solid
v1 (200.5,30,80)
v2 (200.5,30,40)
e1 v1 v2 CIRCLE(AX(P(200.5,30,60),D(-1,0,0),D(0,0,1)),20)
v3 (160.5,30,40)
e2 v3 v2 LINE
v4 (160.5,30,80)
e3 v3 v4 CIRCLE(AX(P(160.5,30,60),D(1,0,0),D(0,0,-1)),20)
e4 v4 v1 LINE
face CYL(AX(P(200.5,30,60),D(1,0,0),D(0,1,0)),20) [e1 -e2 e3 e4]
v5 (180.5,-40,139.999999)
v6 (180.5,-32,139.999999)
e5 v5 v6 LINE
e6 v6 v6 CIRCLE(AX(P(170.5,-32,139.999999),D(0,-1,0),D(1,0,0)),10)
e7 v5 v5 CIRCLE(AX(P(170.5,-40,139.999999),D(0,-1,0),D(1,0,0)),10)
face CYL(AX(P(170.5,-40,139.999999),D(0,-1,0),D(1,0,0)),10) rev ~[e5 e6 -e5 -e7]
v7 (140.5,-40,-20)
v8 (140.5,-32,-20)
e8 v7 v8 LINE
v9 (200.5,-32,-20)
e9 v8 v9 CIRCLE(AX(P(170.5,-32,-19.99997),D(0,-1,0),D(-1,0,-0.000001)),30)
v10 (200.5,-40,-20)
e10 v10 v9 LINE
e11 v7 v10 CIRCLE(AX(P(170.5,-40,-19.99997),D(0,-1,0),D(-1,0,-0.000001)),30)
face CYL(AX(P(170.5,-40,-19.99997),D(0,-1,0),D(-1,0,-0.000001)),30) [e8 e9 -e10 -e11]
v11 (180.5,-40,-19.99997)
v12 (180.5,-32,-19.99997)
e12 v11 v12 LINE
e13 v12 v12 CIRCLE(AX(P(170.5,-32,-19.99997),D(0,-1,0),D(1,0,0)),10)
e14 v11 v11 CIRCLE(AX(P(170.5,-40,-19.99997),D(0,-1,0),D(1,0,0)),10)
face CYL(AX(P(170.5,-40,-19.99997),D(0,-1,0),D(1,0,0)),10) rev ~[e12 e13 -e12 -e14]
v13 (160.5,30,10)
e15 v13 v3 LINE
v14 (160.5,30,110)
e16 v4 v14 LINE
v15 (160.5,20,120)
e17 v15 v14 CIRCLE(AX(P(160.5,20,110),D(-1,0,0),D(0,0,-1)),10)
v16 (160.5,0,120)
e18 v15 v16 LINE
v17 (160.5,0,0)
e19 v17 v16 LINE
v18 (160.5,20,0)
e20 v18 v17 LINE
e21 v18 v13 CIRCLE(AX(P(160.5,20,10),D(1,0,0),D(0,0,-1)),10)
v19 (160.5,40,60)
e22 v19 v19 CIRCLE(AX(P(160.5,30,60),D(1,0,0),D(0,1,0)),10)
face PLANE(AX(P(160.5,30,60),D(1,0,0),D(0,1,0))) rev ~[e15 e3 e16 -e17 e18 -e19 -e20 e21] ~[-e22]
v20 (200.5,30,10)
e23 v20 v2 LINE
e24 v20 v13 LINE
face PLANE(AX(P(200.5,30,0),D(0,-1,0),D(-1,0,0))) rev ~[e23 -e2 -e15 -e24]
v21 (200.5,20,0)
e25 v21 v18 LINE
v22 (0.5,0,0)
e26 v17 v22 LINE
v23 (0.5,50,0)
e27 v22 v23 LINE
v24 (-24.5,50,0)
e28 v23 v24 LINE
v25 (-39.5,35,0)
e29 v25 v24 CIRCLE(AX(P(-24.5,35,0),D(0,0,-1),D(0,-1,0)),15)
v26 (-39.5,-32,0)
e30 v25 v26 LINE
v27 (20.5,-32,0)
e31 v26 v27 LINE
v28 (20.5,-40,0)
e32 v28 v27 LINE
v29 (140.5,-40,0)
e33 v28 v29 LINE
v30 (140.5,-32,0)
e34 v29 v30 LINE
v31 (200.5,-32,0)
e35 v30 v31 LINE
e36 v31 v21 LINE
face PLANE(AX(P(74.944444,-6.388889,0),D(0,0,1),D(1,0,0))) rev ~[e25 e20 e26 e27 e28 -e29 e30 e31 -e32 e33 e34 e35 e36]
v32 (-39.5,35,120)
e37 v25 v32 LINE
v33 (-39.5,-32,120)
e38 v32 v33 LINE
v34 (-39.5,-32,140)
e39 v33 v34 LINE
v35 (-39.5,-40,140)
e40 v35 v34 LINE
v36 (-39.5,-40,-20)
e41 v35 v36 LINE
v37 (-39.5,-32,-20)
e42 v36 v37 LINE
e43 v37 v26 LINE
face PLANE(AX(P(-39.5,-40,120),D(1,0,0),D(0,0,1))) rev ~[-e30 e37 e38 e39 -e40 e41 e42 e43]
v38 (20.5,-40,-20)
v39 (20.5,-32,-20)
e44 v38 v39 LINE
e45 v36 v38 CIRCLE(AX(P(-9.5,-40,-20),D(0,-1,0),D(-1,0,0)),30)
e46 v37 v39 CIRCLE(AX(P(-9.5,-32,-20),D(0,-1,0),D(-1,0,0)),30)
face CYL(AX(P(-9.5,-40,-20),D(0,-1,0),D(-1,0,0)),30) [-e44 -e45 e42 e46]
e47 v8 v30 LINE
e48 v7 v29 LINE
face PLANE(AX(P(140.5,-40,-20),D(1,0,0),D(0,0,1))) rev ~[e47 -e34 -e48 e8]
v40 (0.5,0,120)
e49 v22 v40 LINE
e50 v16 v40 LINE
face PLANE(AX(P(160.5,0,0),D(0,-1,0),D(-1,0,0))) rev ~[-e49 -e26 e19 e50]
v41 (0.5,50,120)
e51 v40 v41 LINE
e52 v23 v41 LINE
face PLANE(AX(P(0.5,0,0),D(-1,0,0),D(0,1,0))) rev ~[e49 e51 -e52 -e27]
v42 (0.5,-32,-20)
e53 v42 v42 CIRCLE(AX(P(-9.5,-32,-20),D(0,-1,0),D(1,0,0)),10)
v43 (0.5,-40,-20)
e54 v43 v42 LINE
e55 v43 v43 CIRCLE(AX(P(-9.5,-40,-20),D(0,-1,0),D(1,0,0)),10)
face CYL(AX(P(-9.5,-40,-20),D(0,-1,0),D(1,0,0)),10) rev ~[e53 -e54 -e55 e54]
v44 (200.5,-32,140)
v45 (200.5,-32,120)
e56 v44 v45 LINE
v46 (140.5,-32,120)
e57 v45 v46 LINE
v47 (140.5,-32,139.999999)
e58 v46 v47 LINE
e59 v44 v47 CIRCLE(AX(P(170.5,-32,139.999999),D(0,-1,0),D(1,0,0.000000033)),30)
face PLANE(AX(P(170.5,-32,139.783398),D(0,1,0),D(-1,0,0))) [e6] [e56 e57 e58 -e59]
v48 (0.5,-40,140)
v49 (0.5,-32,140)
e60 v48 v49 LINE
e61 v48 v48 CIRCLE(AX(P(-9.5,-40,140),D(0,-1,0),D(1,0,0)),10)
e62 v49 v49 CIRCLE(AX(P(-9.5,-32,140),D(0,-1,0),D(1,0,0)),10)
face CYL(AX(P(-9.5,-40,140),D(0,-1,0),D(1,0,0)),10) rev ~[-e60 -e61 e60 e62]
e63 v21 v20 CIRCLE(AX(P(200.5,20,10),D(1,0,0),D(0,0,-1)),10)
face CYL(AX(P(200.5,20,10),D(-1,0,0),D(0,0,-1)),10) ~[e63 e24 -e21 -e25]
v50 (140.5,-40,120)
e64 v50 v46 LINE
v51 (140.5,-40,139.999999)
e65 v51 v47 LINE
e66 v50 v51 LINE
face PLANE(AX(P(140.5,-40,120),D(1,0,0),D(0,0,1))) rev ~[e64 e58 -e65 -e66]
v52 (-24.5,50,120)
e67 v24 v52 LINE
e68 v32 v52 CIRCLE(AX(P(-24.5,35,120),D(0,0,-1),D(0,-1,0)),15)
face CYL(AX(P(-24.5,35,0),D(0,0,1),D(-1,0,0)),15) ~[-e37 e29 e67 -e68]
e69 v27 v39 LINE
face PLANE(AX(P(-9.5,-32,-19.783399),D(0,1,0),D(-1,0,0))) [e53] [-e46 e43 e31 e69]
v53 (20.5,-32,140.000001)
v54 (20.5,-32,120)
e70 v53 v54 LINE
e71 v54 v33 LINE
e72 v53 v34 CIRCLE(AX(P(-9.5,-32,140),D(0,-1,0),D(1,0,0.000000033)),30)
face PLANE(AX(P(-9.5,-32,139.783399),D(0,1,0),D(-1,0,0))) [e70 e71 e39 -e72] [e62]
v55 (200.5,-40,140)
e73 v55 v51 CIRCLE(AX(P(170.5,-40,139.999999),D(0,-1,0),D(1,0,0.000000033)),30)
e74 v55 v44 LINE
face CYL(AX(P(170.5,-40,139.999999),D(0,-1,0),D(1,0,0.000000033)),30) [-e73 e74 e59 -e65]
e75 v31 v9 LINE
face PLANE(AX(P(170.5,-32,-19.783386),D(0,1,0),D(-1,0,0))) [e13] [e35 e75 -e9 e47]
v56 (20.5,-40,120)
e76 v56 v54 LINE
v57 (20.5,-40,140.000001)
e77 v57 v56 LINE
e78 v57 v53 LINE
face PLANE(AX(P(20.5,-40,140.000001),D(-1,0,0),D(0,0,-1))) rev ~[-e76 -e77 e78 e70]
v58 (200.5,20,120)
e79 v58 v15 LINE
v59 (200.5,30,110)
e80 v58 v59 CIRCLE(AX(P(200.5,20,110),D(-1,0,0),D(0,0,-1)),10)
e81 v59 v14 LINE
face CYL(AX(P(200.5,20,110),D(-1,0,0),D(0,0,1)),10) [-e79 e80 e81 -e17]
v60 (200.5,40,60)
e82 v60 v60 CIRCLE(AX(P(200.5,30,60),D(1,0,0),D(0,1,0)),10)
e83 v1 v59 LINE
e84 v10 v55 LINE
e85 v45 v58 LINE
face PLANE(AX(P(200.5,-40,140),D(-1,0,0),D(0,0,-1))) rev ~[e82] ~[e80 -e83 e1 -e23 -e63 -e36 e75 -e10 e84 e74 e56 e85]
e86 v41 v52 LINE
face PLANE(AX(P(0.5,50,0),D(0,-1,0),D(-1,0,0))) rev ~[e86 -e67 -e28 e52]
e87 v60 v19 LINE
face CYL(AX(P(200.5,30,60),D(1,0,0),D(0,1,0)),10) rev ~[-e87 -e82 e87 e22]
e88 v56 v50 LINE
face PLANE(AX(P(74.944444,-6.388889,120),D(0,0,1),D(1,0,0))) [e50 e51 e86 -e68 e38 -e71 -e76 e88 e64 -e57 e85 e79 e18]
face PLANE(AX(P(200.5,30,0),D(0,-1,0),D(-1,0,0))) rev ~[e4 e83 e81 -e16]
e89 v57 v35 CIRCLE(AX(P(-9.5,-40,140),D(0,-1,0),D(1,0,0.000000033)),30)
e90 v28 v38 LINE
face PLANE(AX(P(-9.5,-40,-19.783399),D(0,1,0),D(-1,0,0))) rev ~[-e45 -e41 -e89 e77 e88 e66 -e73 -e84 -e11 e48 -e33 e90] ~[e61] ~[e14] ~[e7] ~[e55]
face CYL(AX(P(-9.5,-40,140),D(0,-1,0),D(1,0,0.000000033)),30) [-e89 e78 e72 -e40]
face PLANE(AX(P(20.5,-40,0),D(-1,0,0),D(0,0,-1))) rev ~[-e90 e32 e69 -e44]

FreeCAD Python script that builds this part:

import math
import FreeCAD as App
import Part
import Sketcher
from FreeCAD import Vector
Q = App.Units.Quantity


def edges_at(feature, points):
    """Names of the edges that pass closest to the given points."""
    edges = feature.Shape.Edges
    near = lambda p: min(range(len(edges)), key=lambda i: edges[i].distToShape(Part.Vertex(*p))[0])
    return sorted({f"Edge{near(p) + 1}" for p in points})


def add_polygon(sketch, points):
    """Adds a closed chain of lines whose ends are joined by coincident constraints."""
    first, n = sketch.GeometryCount, len(points)
    for a, b in zip(points, points[1:] + points[:1]):
        sketch.addGeometry(Part.LineSegment(App.Vector(*a, 0), App.Vector(*b, 0)), False)
    for i in range(n):
        sketch.addConstraint(Sketcher.Constraint("Coincident", first + i, 2, first + (i + 1) % n, 1))

doc = App.newDocument("Part")
body = doc.addObject("PartDesign::Body", "Body")

sketch1 = doc.addObject("Sketcher::SketchObject", "Sketch")
body.addObject(sketch1)
sketch1.AttachmentSupport = (doc.XY_Plane, [""])
sketch1.MapMode = "FlatFace"
add_polygon(sketch1, [(-40, 50), (-40, -40), (200, -40), (200, 30), (160, 30), (160, 0), (0, 0), (0, 50)])
sketch1.addConstraint([
    Sketcher.Constraint("Vertical", 0),
    Sketcher.Constraint("Horizontal", 1),
    Sketcher.Constraint("Vertical", 2),
    Sketcher.Constraint("Horizontal", 3),
    Sketcher.Constraint("Vertical", 4),
    Sketcher.Constraint("Horizontal", 5),
    Sketcher.Constraint("Vertical", 6),
    Sketcher.Constraint("Horizontal", 7),
    Sketcher.Constraint("PointOnObject", 4, 2, -1),
    Sketcher.Constraint("Equal", 3, 7),
    Sketcher.Constraint("DistanceX", 1, 1, 1, 2, Q("240 mm")),
    Sketcher.Constraint("DistanceX", 3, 2, 3, 1, Q("40 mm")),
    Sketcher.Constraint("DistanceY", 0, 2, 0, 1, Q("90 mm")),
    Sketcher.Constraint("DistanceY", 2, 1, 2, 2, Q("70 mm")),
    Sketcher.Constraint("DistanceY", 4, 2, 4, 1, Q("30 mm")),
    Sketcher.Constraint("DistanceX", 0, 2, -1, 1, Q("39.5 mm")),
])
pad1 = doc.addObject("PartDesign::Pad", "Pad")
body.addObject(pad1)
pad1.Profile = sketch1
pad1.Length = 120
doc.recompute()

fillet = doc.addObject("PartDesign::Fillet", "Fillet")
body.addObject(fillet)
fillet.Base = (pad1, edges_at(pad1, [(-39.5, 50, 60)]))
fillet.Radius = 15
doc.recompute()

fillet2 = doc.addObject("PartDesign::Fillet", "Fillet001")
body.addObject(fillet2)
fillet2.Base = (fillet, edges_at(fillet, [(180.5, 30, 120), (180.5, 30, 0)]))
fillet2.Radius = 10

sketch2 = doc.addObject("Sketcher::SketchObject", "Sketch001")
body.addObject(sketch2)
sketch2.AttachmentSupport = (doc.YZ_Plane, [""])
sketch2.MapMode = "FlatFace"
sketch2.AttachmentOffset = App.Placement(Vector(0, 0, 200.5), App.Rotation())
sketch2.addGeometry(Part.Circle(Vector(30, 60, 0), Vector(0, 0, 1), 20), False)
sketch2.addConstraint([
    Sketcher.Constraint("Diameter", 0, Q("40 mm")),
    Sketcher.Constraint("DistanceX", -1, 1, 0, 3, Q("30 mm")),
    Sketcher.Constraint("DistanceY", -1, 1, 0, 3, Q("60 mm")),
])
pad2 = doc.addObject("PartDesign::Pad", "Pad001")
body.addObject(pad2)
pad2.Profile = sketch2
pad2.Length = 40
pad2.Reversed = True

sketch3 = doc.addObject("Sketcher::SketchObject", "Sketch002")
body.addObject(sketch3)
sketch3.AttachmentSupport = (doc.YZ_Plane, [""])
sketch3.MapMode = "FlatFace"
sketch3.AttachmentOffset = App.Placement(Vector(0, 0, 200.5), App.Rotation())
sketch3.addGeometry(Part.Circle(Vector(30, 60, 0), Vector(0, 0, 1), 10), False)
sketch3.addConstraint([
    Sketcher.Constraint("Diameter", 0, Q("20 mm")),
    Sketcher.Constraint("DistanceX", -1, 1, 0, 3, Q("30 mm")),
    Sketcher.Constraint("DistanceY", -1, 1, 0, 3, Q("60 mm")),
])
pocket1 = doc.addObject("PartDesign::Pocket", "Pocket")
body.addObject(pocket1)
pocket1.Profile = sketch3
pocket1.Length = 40

sketch4 = doc.addObject("Sketcher::SketchObject", "Sketch003")
body.addObject(sketch4)
sketch4.AttachmentSupport = (doc.XZ_Plane, [""])
sketch4.MapMode = "FlatFace"
sketch4.AttachmentOffset = App.Placement(Vector(0, 0, 40), App.Rotation())
sketch4.addGeometry([
    Part.LineSegment(Vector(20, 120, 0), Vector(20, 140, 0)),
    Part.ArcOfCircle(Part.Circle(Vector(-10, 140, 0), Vector(0, 0, 1), 30), math.radians(0), math.radians(180)),
    Part.LineSegment(Vector(-40, 140, 0), Vector(-40, 120, 0)),
    Part.LineSegment(Vector(-40, 120, 0), Vector(20, 120, 0)),
], False)
sketch4.addConstraint([
    Sketcher.Constraint("Tangent", 0, 2, 1, 1),
    Sketcher.Constraint("Tangent", 1, 2, 2, 1),
    Sketcher.Constraint("Coincident", 2, 2, 3, 1),
    Sketcher.Constraint("Coincident", 3, 2, 0, 1),
    Sketcher.Constraint("Vertical", 0),
    Sketcher.Constraint("Vertical", 2),
    Sketcher.Constraint("Horizontal", 3),
    Sketcher.Constraint("Radius", 1, Q("30 mm")),
    Sketcher.Constraint("DistanceY", 0, 1, 0, 2, Q("20.000001 mm")),
    Sketcher.Constraint("DistanceY", -1, 1, 1, 3, Q("140 mm")),
    Sketcher.Constraint("DistanceX", 1, 3, -1, 1, Q("9.5 mm")),
])
pad3 = doc.addObject("PartDesign::Pad", "Pad002")
body.addObject(pad3)
pad3.Profile = sketch4
pad3.Length = 8
pad3.Reversed = True

sketch5 = doc.addObject("Sketcher::SketchObject", "Sketch004")
body.addObject(sketch5)
sketch5.AttachmentSupport = (doc.XZ_Plane, [""])
sketch5.MapMode = "FlatFace"
sketch5.AttachmentOffset = App.Placement(Vector(0, 0, 40), App.Rotation())
sketch5.addGeometry(Part.Circle(Vector(-10, 140, 0), Vector(0, 0, 1), 10), False)
sketch5.addConstraint([
    Sketcher.Constraint("Diameter", 0, Q("20 mm")),
    Sketcher.Constraint("DistanceY", -1, 1, 0, 3, Q("140 mm")),
    Sketcher.Constraint("DistanceX", 0, 3, -1, 1, Q("9.5 mm")),
])
pocket2 = doc.addObject("PartDesign::Pocket", "Pocket001")
body.addObject(pocket2)
pocket2.Profile = sketch5
pocket2.Length = 8

sketch6 = doc.addObject("Sketcher::SketchObject", "Sketch005")
body.addObject(sketch6)
sketch6.AttachmentSupport = (doc.XZ_Plane, [""])
sketch6.MapMode = "FlatFace"
sketch6.AttachmentOffset = App.Placement(Vector(0, 0, 40), App.Rotation())
sketch6.addGeometry([
    Part.LineSegment(Vector(200, 120, 0), Vector(200, 140, 0)),
    Part.ArcOfCircle(Part.Circle(Vector(170, 140, 0), Vector(0, 0, 1), 30), math.radians(0), math.radians(180)),
    Part.LineSegment(Vector(140, 140, 0), Vector(140, 120, 0)),
    Part.LineSegment(Vector(140, 120, 0), Vector(200, 120, 0)),
], False)
sketch6.addConstraint([
    Sketcher.Constraint("Tangent", 0, 2, 1, 1),
    Sketcher.Constraint("Tangent", 1, 2, 2, 1),
    Sketcher.Constraint("Coincident", 2, 2, 3, 1),
    Sketcher.Constraint("Coincident", 3, 2, 0, 1),
    Sketcher.Constraint("Vertical", 0),
    Sketcher.Constraint("Vertical", 2),
    Sketcher.Constraint("Horizontal", 3),
    Sketcher.Constraint("Radius", 1, Q("30 mm")),
    Sketcher.Constraint("DistanceY", 0, 1, 0, 2, Q("20 mm")),
    Sketcher.Constraint("DistanceY", -1, 1, 1, 3, Q("139.999999 mm")),
    Sketcher.Constraint("DistanceX", -1, 1, 1, 3, Q("170.5 mm")),
])
pad4 = doc.addObject("PartDesign::Pad", "Pad003")
body.addObject(pad4)
pad4.Profile = sketch6
pad4.Length = 8
pad4.Reversed = True

sketch7 = doc.addObject("Sketcher::SketchObject", "Sketch006")
body.addObject(sketch7)
sketch7.AttachmentSupport = (doc.XZ_Plane, [""])
sketch7.MapMode = "FlatFace"
sketch7.AttachmentOffset = App.Placement(Vector(0, 0, 40), App.Rotation())
sketch7.addGeometry(Part.Circle(Vector(170, 140, 0), Vector(0, 0, 1), 10), False)
sketch7.addConstraint([
    Sketcher.Constraint("Diameter", 0, Q("20 mm")),
    Sketcher.Constraint("DistanceY", -1, 1, 0, 3, Q("139.999999 mm")),
    Sketcher.Constraint("DistanceX", -1, 1, 0, 3, Q("170.5 mm")),
])
pocket3 = doc.addObject("PartDesign::Pocket", "Pocket002")
body.addObject(pocket3)
pocket3.Profile = sketch7
pocket3.Length = 8

sketch8 = doc.addObject("Sketcher::SketchObject", "Sketch007")
body.addObject(sketch8)
sketch8.AttachmentSupport = (doc.XZ_Plane, [""])
sketch8.MapMode = "FlatFace"
sketch8.AttachmentOffset = App.Placement(Vector(0, 0, 40), App.Rotation())
sketch8.addGeometry([
    Part.LineSegment(Vector(20.5, 0, 0), Vector(-39.5, 0, 0)),
    Part.LineSegment(Vector(-39.5, 0, 0), Vector(-39.5, -20, 0)),
    Part.ArcOfCircle(Part.Circle(Vector(-9.5, -20, 0), Vector(0, 0, 1), 30), math.radians(180), math.radians(360)),
    Part.LineSegment(Vector(20.5, -20, 0), Vector(20.5, 0, 0)),
    Part.LineSegment(Vector(200.5, 0, 0), Vector(140.5, 0, 0)),
    Part.LineSegment(Vector(140.5, 0, 0), Vector(140.5, -20, 0)),
    Part.ArcOfCircle(Part.Circle(Vector(170.5, -19.99997, 0), Vector(0, 0, 1), 30), math.radians(-179.999943), math.radians(-0.000057)),
    Part.LineSegment(Vector(200.5, -20, 0), Vector(200.5, 0, 0)),
], False)
sketch8.addConstraint([
    Sketcher.Constraint("Coincident", 0, 2, 1, 1),
    Sketcher.Constraint("Coincident", 1, 2, 2, 1),
    Sketcher.Constraint("Coincident", 2, 2, 3, 1),
    Sketcher.Constraint("Coincident", 3, 2, 0, 1),
    Sketcher.Constraint("Coincident", 4, 2, 5, 1),
    Sketcher.Constraint("Coincident", 5, 2, 6, 1),
    Sketcher.Constraint("Coincident", 6, 2, 7, 1),
    Sketcher.Constraint("Coincident", 7, 2, 4, 1),
    Sketcher.Constraint("Horizontal", 0),
    Sketcher.Constraint("Vertical", 1),
    Sketcher.Constraint("Vertical", 3),
    Sketcher.Constraint("Horizontal", 4),
    Sketcher.Constraint("Vertical", 5),
    Sketcher.Constraint("Vertical", 7),
    Sketcher.Constraint("PointOnObject", 0, 2, -1),
    Sketcher.Constraint("PointOnObject", 4, 2, -1),
    Sketcher.Constraint("Radius", 2, Q("30 mm")),
    Sketcher.Constraint("Radius", 6, Q("30 mm")),
    Sketcher.Constraint("DistanceY", 1, 2, 1, 1, Q("20 mm")),
    Sketcher.Constraint("DistanceY", 3, 1, 3, 2, Q("20 mm")),
    Sketcher.Constraint("DistanceY", 5, 2, 5, 1, Q("20 mm")),
    Sketcher.Constraint("DistanceY", 7, 1, 7, 2, Q("20 mm")),
    Sketcher.Constraint("DistanceY", 2, 3, -1, 1, Q("20 mm")),
    Sketcher.Constraint("DistanceX", 2, 3, 6, 3, Q("180 mm")),
    Sketcher.Constraint("DistanceX", 2, 3, -1, 1, Q("9.5 mm")),
    Sketcher.Constraint("DistanceY", 6, 3, -1, 1, Q("19.99997 mm")),
])
pad5 = doc.addObject("PartDesign::Pad", "Pad004")
body.addObject(pad5)
pad5.Profile = sketch8
pad5.Length = 8
pad5.Reversed = True

sketch9 = doc.addObject("Sketcher::SketchObject", "Sketch008")
body.addObject(sketch9)
sketch9.AttachmentSupport = (doc.XZ_Plane, [""])
sketch9.MapMode = "FlatFace"
sketch9.AttachmentOffset = App.Placement(Vector(0, 0, 40), App.Rotation())
sketch9.addGeometry([
    Part.Circle(Vector(-10, -20, 0), Vector(0, 0, 1), 10),
    Part.Circle(Vector(170, -20, 0), Vector(0, 0, 1), 10),
], False)
sketch9.addConstraint([
    Sketcher.Constraint("Equal", 0, 1),
    Sketcher.Constraint("Diameter", 0, Q("20 mm")),
    Sketcher.Constraint("DistanceY", 0, 3, -1, 1, Q("20 mm")),
    Sketcher.Constraint("DistanceX", 0, 3, 1, 3, Q("180 mm")),
    Sketcher.Constraint("DistanceX", 0, 3, -1, 1, Q("9.5 mm")),
    Sketcher.Constraint("DistanceY", 1, 3, -1, 1, Q("19.99997 mm")),
])
pocket4 = doc.addObject("PartDesign::Pocket", "Pocket003")
body.addObject(pocket4)
pocket4.Profile = sketch9
pocket4.Length = 8

doc.recompute()
